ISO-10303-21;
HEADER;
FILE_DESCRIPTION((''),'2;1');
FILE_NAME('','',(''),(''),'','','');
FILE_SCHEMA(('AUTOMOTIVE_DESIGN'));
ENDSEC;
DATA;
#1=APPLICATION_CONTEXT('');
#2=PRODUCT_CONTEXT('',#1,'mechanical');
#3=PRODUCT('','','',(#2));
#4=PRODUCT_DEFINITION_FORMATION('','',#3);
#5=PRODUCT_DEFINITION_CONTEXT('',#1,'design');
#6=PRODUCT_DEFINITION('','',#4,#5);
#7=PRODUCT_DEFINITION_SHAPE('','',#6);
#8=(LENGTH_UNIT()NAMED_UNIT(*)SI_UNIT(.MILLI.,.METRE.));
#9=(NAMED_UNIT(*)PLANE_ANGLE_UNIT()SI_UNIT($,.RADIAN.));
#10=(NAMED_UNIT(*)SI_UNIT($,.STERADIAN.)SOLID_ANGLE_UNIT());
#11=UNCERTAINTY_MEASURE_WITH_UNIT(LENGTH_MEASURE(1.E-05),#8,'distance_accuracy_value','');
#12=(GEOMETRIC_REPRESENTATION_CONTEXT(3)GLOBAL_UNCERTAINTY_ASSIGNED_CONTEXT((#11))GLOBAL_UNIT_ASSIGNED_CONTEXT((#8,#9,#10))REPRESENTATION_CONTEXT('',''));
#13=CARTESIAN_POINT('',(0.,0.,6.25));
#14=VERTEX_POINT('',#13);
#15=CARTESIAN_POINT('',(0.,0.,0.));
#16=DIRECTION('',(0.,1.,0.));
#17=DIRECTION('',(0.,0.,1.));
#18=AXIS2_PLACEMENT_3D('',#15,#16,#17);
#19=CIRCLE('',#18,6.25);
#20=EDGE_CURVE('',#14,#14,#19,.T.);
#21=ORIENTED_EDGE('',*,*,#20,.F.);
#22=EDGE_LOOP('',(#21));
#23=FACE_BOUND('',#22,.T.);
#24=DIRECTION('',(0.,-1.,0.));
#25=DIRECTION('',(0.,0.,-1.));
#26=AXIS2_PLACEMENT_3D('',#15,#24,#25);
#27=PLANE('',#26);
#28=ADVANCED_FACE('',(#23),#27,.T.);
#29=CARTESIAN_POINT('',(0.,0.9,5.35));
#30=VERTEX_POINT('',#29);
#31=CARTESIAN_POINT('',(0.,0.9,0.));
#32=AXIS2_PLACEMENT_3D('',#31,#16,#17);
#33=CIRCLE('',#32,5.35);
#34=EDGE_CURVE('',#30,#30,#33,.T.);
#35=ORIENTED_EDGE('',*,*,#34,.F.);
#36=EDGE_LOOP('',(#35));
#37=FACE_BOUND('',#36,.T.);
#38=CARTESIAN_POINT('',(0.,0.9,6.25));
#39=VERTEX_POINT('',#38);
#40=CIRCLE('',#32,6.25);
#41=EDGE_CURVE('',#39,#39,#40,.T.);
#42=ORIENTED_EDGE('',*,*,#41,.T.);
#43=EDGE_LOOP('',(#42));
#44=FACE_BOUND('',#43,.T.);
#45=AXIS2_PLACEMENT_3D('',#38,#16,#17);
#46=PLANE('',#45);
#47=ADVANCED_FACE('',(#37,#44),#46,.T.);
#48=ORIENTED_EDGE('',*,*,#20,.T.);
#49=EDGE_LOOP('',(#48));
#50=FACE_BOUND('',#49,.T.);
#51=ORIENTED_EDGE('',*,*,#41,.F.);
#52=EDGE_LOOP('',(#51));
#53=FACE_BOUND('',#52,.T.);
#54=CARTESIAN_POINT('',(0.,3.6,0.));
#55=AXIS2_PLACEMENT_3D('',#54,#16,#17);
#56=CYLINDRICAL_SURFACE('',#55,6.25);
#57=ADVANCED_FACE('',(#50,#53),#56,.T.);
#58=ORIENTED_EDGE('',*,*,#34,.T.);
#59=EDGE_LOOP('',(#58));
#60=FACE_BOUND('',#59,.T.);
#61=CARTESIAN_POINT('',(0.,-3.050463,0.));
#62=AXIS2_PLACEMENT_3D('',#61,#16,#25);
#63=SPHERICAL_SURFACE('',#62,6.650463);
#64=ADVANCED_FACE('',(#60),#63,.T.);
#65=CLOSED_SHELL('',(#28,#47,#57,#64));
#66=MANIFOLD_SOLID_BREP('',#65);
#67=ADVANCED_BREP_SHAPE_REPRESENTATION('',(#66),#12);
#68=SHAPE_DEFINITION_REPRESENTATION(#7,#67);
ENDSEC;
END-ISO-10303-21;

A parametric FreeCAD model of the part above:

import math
import FreeCAD as App
import Part
import Sketcher

doc = App.newDocument("Part")
body = doc.addObject("PartDesign::Body", "Body")

# Sketch on YZ plane
sketch1 = body.newObject("Sketcher::SketchObject", "Sketch")
sketch1.AttachmentSupport = (doc.getObject("YZ_Plane"), [""])
sketch1.MapMode = "FlatFace"
sketch1.addGeometry(Part.LineSegment(App.Vector(0, 6.2, 0), App.Vector(0, 0, 0)), False)
sketch1.addGeometry(Part.LineSegment(App.Vector(0, 0, 0), App.Vector(3.6, 0, 0)), False)
sketch1.addGeometry(Part.ArcOfCircle(Part.Circle(App.Vector(-3.1, 0, 0), App.Vector(0, 0, 1), 6.7), math.radians(0), math.radians(54)), False)
sketch1.addGeometry(Part.LineSegment(App.Vector(0.9, 5.3, 0), App.Vector(0.9, 6.2, 0)), False)
sketch1.addGeometry(Part.LineSegment(App.Vector(0.9, 6.2, 0), App.Vector(0, 6.2, 0)), False)
sketch1.addConstraint(Sketcher.Constraint("Coincident", 0, 2, 1, 1))
sketch1.addConstraint(Sketcher.Constraint("Coincident", 1, 2, 2, 1))
sketch1.addConstraint(Sketcher.Constraint("Coincident", 2, 2, 3, 1))
sketch1.addConstraint(Sketcher.Constraint("Coincident", 3, 2, 4, 1))
sketch1.addConstraint(Sketcher.Constraint("Coincident", 4, 2, 0, 1))
sketch1.addConstraint(Sketcher.Constraint("Vertical", 0))
sketch1.addConstraint(Sketcher.Constraint("Horizontal", 1))
sketch1.addConstraint(Sketcher.Constraint("Vertical", 3))
sketch1.addConstraint(Sketcher.Constraint("Horizontal", 4))
sketch1.addConstraint(Sketcher.Constraint("Coincident", 0, 2, -1, 1))
sketch1.addConstraint(Sketcher.Constraint("PointOnObject", 2, 3, -1))
sketch1.addConstraint(Sketcher.Constraint("Equal", 4, 3))
sketch1.addConstraint(Sketcher.Constraint("DistanceX", 1, 1, 1, 2, 3.6))
sketch1.addConstraint(Sketcher.Constraint("DistanceX", 4, 2, 4, 1, 0.9))
sketch1.addConstraint(Sketcher.Constraint("DistanceY", 0, 2, 0, 1, 6.25))
revolution = body.newObject("PartDesign::Revolution", "Revolution")
revolution.Profile = sketch1
revolution.ReferenceAxis = (sketch1, ["H_Axis"])
revolution.Angle = 360

doc.recompute()
